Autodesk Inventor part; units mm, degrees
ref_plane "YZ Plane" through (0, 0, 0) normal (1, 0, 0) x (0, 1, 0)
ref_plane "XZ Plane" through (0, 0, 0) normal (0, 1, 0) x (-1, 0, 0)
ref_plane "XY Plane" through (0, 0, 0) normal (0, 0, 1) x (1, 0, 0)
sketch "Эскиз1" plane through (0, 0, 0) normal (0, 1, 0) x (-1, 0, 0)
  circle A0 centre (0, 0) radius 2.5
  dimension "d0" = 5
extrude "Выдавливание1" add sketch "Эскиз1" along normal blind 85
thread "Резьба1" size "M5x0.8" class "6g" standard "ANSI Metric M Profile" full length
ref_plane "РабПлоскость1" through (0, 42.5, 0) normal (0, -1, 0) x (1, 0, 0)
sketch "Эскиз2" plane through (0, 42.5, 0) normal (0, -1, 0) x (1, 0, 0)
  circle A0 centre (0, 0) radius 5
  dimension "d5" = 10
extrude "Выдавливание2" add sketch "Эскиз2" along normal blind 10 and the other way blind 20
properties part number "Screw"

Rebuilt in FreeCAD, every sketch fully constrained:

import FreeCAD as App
import Part
import Sketcher
from FreeCAD import Vector
Q = App.Units.Quantity

doc = App.newDocument("Part")
params = doc.addObject("Spreadsheet::Sheet", "Params")
for row, (alias, value) in enumerate([
    ("sketch1_diameter", "5 mm"),
    ("pad1_length", "85 mm"),
    ("sketch2_diameter", "10 mm"),
    ("pad2_length", "10 mm"),
    ("pad2_length2", "20 mm"),
], start=1):
    params.set(f"A{row}", alias)
    params.set(f"B{row}", "=" + value)
    params.setAlias(f"B{row}", alias)

body = doc.addObject("PartDesign::Body", "Body")

sketch1 = doc.addObject("Sketcher::SketchObject", "Sketch")
body.addObject(sketch1)
sketch1.AttachmentSupport = (doc.XZ_Plane, [""])
sketch1.MapMode = "FlatFace"
sketch1.addGeometry(Part.Circle(Vector(0, 0, 0), Vector(0, 0, 1), 2.5), False)
sketch1.addConstraint(Sketcher.Constraint("Coincident", 0, 3, -1, 1))
sketch1.addConstraint(Sketcher.Constraint("Diameter", 0, Q("5 mm")))
sketch1.setExpression("Constraints[1]", "Params.sketch1_diameter")
pad1 = doc.addObject("PartDesign::Pad", "Pad")
body.addObject(pad1)
pad1.Profile = sketch1
pad1.setExpression("Length", "Params.pad1_length")
pad1.Reversed = True

sketch2 = doc.addObject("Sketcher::SketchObject", "Sketch001")
body.addObject(sketch2)
sketch2.AttachmentSupport = (doc.XZ_Plane, [""])
sketch2.MapMode = "FlatFace"
sketch2.AttachmentOffset = App.Placement(Vector(0, 0, -42.5), App.Rotation())
sketch2.addGeometry(Part.Circle(Vector(0, 0, 0), Vector(0, 0, 1), 5), False)
sketch2.addConstraint(Sketcher.Constraint("Coincident", 0, 3, -1, 1))
sketch2.addConstraint(Sketcher.Constraint("Diameter", 0, Q("10 mm")))
sketch2.setExpression("Constraints[1]", "Params.sketch2_diameter")
pad2 = doc.addObject("PartDesign::Pad", "Pad001")
body.addObject(pad2)
pad2.Profile = sketch2
pad2.Type = "TwoLengths"
pad2.setExpression("Length", "Params.pad2_length")
pad2.setExpression("Length2", "Params.pad2_length2")

doc.recompute()
